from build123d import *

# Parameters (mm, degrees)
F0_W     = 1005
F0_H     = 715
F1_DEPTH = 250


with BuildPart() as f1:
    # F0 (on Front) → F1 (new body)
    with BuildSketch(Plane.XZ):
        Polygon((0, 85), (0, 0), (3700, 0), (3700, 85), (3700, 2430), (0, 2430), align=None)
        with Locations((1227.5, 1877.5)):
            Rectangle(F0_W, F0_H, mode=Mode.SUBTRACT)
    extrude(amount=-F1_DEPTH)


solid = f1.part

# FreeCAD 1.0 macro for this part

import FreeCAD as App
import Part
import Sketcher

V = App.Vector

doc = App.newDocument("Part")
params = doc.addObject("Spreadsheet::Sheet", "Params")
for row, (alias, value) in enumerate([
    ("sketch1_width", "3700 mm"),
    ("sketch1_width2", "1005 mm"),
    ("sketch1_height", "2430 mm"),
    ("sketch1_height2", "715 mm"),
    ("pad1_length", "250 mm"),
], start=1):
    params.set(f"A{row}", alias)
    params.set(f"B{row}", "=" + value)
    params.setAlias(f"B{row}", alias)

body = doc.addObject("PartDesign::Body", "Body")

sketch1 = body.newObject("Sketcher::SketchObject", "Sketch")
sketch1.AttachmentSupport = (doc.getObject("XZ_Plane"), [""])
sketch1.MapMode = "FlatFace"
sketch1.addGeometry(Part.LineSegment(V(0, 0, 0), V(3700, 0, 0)), False)
sketch1.addGeometry(Part.LineSegment(V(3700, 0, 0), V(3700, 2430, 0)), False)
sketch1.addGeometry(Part.LineSegment(V(3700, 2430, 0), V(0, 2430, 0)), False)
sketch1.addGeometry(Part.LineSegment(V(0, 2430, 0), V(0, 0, 0)), False)
sketch1.addGeometry(Part.LineSegment(V(1730, 1520, 0), V(725, 1520, 0)), False)
sketch1.addGeometry(Part.LineSegment(V(725, 1520, 0), V(725, 2235, 0)), False)
sketch1.addGeometry(Part.LineSegment(V(725, 2235, 0), V(1730, 2235, 0)), False)
sketch1.addGeometry(Part.LineSegment(V(1730, 2235, 0), V(1730, 1520, 0)), False)
sketch1.addConstraint(Sketcher.Constraint("Coincident", 0, 2, 1, 1))
sketch1.addConstraint(Sketcher.Constraint("Coincident", 1, 2, 2, 1))
sketch1.addConstraint(Sketcher.Constraint("Coincident", 2, 2, 3, 1))
sketch1.addConstraint(Sketcher.Constraint("Coincident", 3, 2, 0, 1))
sketch1.addConstraint(Sketcher.Constraint("Coincident", 4, 2, 5, 1))
sketch1.addConstraint(Sketcher.Constraint("Coincident", 5, 2, 6, 1))
sketch1.addConstraint(Sketcher.Constraint("Coincident", 6, 2, 7, 1))
sketch1.addConstraint(Sketcher.Constraint("Coincident", 7, 2, 4, 1))
sketch1.addConstraint(Sketcher.Constraint("Horizontal", 0))
sketch1.addConstraint(Sketcher.Constraint("Vertical", 1))
sketch1.addConstraint(Sketcher.Constraint("Horizontal", 2))
sketch1.addConstraint(Sketcher.Constraint("Vertical", 3))
sketch1.addConstraint(Sketcher.Constraint("Horizontal", 4))
sketch1.addConstraint(Sketcher.Constraint("Vertical", 5))
sketch1.addConstraint(Sketcher.Constraint("Horizontal", 6))
sketch1.addConstraint(Sketcher.Constraint("Vertical", 7))
sketch1.addConstraint(Sketcher.Constraint("Coincident", 3, 2, -1, 1))
sketch1.addConstraint(Sketcher.Constraint("DistanceX", 0, 1, 0, 2, 3700.0))
sketch1.addConstraint(Sketcher.Constraint("DistanceX", 4, 2, 4, 1, 1005.0))
sketch1.addConstraint(Sketcher.Constraint("DistanceY", 1, 1, 1, 2, 2430.0))
sketch1.addConstraint(Sketcher.Constraint("DistanceY", 5, 1, 5, 2, 715.0))
sketch1.addConstraint(Sketcher.Constraint("DistanceX", -1, 1, 4, 2, 725.0))
sketch1.addConstraint(Sketcher.Constraint("DistanceY", -1, 1, 4, 2, 1520.0))
sketch1.setExpression("Constraints[17]", "Params.sketch1_width")
sketch1.setExpression("Constraints[18]", "Params.sketch1_width2")
sketch1.setExpression("Constraints[19]", "Params.sketch1_height")
sketch1.setExpression("Constraints[20]", "Params.sketch1_height2")
pad1 = body.newObject("PartDesign::Pad", "Pad")
pad1.Profile = sketch1
pad1.setExpression("Length", "Params.pad1_length")
pad1.Reversed = True

doc.recompute()
